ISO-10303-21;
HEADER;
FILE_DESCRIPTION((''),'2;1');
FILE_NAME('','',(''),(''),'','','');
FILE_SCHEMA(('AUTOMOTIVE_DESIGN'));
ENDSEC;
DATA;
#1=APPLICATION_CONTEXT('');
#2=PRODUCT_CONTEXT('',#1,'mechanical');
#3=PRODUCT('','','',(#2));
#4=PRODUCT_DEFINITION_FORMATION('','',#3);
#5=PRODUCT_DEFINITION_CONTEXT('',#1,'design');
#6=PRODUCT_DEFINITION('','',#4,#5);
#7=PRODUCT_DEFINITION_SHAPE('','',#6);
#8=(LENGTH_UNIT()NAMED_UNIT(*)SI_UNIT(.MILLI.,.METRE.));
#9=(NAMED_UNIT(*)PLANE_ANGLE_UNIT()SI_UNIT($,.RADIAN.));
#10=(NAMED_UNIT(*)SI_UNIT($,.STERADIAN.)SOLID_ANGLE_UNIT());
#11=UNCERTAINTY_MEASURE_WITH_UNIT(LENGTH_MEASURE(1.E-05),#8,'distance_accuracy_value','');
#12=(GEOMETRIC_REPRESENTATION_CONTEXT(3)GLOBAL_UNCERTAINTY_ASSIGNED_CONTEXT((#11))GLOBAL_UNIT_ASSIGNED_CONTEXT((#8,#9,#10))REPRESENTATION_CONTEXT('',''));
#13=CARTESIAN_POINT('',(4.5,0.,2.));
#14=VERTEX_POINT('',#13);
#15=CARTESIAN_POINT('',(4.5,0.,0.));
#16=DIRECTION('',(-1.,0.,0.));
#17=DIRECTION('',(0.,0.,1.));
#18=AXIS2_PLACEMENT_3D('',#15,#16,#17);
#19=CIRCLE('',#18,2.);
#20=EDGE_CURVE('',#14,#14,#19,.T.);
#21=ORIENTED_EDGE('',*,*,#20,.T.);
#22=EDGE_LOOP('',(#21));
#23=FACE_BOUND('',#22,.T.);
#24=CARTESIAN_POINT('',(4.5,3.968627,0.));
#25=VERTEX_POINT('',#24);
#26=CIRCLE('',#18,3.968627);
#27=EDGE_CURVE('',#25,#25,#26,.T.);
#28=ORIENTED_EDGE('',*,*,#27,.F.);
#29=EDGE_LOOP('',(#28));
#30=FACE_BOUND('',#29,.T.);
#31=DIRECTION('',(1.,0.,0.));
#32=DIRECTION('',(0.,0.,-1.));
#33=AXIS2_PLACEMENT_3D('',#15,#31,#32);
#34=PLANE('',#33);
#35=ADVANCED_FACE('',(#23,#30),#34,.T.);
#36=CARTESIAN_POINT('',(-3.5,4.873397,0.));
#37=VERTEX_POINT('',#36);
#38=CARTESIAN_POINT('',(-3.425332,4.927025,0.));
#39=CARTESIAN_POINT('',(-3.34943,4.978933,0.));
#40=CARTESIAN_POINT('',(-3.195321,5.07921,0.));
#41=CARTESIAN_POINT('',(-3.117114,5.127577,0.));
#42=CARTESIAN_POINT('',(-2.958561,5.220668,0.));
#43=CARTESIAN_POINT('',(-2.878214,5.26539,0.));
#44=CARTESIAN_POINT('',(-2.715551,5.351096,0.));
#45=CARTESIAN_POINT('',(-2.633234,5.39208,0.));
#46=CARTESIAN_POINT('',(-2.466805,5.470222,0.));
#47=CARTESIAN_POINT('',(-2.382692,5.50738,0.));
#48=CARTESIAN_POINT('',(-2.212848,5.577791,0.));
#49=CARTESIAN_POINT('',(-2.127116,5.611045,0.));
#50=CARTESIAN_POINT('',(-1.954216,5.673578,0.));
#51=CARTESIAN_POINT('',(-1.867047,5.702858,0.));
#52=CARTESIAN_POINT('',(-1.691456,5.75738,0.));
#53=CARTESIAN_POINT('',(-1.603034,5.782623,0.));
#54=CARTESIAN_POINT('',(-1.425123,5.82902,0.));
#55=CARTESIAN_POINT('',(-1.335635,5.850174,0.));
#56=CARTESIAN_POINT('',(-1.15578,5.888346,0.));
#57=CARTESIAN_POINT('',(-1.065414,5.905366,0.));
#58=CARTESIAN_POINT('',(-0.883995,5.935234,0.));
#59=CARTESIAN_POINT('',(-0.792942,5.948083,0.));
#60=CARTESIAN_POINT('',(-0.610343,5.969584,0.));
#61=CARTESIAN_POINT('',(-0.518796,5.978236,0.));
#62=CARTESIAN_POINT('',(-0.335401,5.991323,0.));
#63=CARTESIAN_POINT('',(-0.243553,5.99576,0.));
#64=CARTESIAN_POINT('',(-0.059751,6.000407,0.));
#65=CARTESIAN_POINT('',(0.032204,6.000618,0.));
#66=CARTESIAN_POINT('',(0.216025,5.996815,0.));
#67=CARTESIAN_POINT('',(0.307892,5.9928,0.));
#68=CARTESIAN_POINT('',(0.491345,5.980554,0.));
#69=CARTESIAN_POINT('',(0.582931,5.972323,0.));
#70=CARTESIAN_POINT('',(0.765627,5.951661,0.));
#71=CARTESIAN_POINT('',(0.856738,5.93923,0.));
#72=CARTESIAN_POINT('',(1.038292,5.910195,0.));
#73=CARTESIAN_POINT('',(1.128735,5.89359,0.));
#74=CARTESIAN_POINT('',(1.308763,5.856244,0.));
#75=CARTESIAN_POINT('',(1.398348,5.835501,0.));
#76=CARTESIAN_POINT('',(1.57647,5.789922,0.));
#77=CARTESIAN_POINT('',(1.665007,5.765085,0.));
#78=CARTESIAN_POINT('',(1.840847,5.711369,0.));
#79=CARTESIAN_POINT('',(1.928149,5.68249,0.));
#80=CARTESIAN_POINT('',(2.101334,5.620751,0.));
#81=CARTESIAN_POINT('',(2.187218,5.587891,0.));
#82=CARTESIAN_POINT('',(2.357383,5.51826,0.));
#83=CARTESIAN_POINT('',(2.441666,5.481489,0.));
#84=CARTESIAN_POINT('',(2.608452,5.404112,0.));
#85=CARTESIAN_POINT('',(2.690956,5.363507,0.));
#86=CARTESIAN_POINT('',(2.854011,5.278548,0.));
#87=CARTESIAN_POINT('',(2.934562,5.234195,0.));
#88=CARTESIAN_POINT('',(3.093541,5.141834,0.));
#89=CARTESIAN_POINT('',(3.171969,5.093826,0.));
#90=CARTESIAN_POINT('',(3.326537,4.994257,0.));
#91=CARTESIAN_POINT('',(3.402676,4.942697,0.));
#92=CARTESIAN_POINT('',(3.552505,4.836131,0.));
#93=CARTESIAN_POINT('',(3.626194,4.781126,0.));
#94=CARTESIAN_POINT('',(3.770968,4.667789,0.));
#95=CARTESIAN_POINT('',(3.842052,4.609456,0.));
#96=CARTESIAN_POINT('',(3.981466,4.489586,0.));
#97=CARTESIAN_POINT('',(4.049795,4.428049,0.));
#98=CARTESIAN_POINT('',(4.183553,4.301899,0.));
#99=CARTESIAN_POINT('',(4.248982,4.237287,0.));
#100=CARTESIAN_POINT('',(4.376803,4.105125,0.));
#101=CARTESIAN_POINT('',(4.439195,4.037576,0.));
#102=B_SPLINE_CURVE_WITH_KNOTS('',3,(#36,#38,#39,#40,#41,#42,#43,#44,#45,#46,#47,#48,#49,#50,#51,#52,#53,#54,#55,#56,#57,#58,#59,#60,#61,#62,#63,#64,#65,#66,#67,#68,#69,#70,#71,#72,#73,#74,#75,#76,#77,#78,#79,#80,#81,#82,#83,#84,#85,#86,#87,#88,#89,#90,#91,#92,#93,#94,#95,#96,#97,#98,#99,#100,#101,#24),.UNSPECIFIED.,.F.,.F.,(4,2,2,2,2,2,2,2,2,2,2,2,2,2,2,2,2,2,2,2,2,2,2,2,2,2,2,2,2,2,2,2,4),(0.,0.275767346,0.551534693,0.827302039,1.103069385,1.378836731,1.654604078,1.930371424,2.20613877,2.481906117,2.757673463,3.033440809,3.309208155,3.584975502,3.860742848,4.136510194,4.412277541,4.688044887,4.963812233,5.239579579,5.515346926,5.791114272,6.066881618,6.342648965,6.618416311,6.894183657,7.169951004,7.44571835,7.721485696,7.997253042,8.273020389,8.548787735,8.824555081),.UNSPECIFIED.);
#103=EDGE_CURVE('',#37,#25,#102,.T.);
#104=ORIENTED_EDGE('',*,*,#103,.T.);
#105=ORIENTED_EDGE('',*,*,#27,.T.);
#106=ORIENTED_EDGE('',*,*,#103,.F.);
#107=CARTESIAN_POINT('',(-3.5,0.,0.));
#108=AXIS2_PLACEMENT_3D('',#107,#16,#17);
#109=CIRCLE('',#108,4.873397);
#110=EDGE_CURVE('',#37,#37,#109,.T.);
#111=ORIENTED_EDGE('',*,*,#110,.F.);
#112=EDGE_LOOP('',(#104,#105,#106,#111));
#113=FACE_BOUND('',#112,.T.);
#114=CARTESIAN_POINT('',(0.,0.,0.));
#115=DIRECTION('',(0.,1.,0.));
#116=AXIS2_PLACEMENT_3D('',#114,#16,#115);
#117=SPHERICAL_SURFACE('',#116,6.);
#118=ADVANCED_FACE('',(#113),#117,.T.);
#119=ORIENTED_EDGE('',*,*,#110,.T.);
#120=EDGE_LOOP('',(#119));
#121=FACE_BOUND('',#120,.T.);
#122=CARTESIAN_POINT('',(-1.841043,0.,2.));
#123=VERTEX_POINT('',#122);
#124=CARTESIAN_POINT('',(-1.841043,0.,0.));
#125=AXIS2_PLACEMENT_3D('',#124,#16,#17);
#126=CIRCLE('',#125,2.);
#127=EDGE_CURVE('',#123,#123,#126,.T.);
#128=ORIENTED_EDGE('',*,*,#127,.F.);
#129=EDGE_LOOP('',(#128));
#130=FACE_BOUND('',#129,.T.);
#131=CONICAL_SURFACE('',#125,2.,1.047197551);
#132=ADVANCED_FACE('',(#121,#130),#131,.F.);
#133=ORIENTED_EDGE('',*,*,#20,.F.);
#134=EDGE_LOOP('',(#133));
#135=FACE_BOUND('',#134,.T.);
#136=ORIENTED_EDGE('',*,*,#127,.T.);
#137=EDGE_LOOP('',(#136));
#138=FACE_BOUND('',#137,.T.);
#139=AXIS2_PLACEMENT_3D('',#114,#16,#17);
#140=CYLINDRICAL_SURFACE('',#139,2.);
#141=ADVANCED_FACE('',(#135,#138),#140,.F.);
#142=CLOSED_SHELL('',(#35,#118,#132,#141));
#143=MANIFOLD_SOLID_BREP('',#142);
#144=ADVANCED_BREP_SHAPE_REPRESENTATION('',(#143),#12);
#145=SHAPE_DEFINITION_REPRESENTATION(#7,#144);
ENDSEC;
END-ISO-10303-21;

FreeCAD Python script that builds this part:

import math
import FreeCAD as App
import Part
import Sketcher
from FreeCAD import Vector
Q = App.Units.Quantity

doc = App.newDocument("Part")
body = doc.addObject("PartDesign::Body", "Body")

# Sketch on XY plane
sketch1 = doc.addObject("Sketcher::SketchObject", "Sketch")
body.addObject(sketch1)
sketch1.AttachmentSupport = (doc.XY_Plane, [""])
sketch1.MapMode = "FlatFace"
sketch1.addGeometry(Part.LineSegment(Vector(-1.8, 2, 0), Vector(4.5, 2, 0)), False)
sketch1.addGeometry(Part.LineSegment(Vector(4.5, 2, 0), Vector(4.5, 4, 0)), False)
sketch1.addGeometry(Part.ArcOfCircle(Part.Circle(Vector(0, 0, 0), Vector(0, 0, 1), 6), math.radians(41), math.radians(126)), False)
sketch1.addGeometry(Part.LineSegment(Vector(-3.5, 4.9, 0), Vector(-1.8, 2, 0)), False)
sketch1.addConstraint(Sketcher.Constraint("Coincident", 0, 2, 1, 1))
sketch1.addConstraint(Sketcher.Constraint("Coincident", 1, 2, 2, 1))
sketch1.addConstraint(Sketcher.Constraint("Coincident", 2, 2, 3, 1))
sketch1.addConstraint(Sketcher.Constraint("Coincident", 3, 2, 0, 1))
sketch1.addConstraint(Sketcher.Constraint("Horizontal", 0))
sketch1.addConstraint(Sketcher.Constraint("Vertical", 1))
sketch1.addConstraint(Sketcher.Constraint("Coincident", 2, 3, -1, 1))
sketch1.addConstraint(Sketcher.Constraint("Radius", 2, 6.0))
sketch1.addConstraint(Sketcher.Constraint("Angle", 3, Q("-60 deg")))
sketch1.addConstraint(Sketcher.Constraint("DistanceY", -1, 1, 0, 2, 2.0))
sketch1.addConstraint(Sketcher.Constraint("DistanceX", 2, 2, 1, 2, 8.0))
sketch1.addConstraint(Sketcher.Constraint("DistanceX", -1, 1, 0, 2, 4.5))
revolution = doc.addObject("PartDesign::Revolution", "Revolution")
body.addObject(revolution)
revolution.Profile = sketch1
revolution.ReferenceAxis = (sketch1, ["H_Axis"])
revolution.Angle = 360

doc.recompute()
